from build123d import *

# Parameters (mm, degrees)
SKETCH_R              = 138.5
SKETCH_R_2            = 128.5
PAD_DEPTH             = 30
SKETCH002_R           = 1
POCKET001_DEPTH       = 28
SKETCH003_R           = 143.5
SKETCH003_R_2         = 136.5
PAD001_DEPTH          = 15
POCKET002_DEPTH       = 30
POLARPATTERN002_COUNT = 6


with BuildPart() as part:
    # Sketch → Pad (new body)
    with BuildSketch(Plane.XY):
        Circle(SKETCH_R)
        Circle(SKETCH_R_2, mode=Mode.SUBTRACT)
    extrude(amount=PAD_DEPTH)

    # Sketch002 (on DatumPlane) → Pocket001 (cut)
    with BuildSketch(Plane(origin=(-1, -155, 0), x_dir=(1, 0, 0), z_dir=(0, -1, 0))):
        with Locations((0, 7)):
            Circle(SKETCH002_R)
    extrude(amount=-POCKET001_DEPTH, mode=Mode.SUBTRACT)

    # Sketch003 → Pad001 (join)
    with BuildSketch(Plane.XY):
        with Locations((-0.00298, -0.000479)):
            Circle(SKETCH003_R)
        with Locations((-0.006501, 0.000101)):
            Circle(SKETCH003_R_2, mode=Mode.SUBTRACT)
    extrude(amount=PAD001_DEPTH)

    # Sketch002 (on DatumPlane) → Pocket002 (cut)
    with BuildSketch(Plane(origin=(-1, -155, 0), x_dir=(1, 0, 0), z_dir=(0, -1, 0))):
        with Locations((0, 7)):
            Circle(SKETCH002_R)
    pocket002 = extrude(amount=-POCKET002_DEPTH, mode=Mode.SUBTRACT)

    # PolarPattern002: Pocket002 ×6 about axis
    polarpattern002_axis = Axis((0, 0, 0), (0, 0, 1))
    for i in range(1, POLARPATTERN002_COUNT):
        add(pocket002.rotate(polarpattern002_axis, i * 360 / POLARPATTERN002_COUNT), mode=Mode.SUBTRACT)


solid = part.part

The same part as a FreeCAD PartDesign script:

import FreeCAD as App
import Part
import Sketcher
from FreeCAD import Vector
Q = App.Units.Quantity

doc = App.newDocument("Part")
body = doc.addObject("PartDesign::Body", "Body")

# Sketch on XY plane
sketch1 = doc.addObject("Sketcher::SketchObject", "Sketch")
body.addObject(sketch1)
sketch1.AttachmentSupport = (doc.XY_Plane, [""])
sketch1.MapMode = "FlatFace"
sketch1.addGeometry([
    Part.Circle(Vector(0, 0, 0), Vector(0, 0, 1), 138.5),
    Part.Circle(Vector(0, 0, 0), Vector(0, 0, 1), 128.5),
], False)
sketch1.addConstraint([
    Sketcher.Constraint("Coincident", 0, 3, -1, 1),
    Sketcher.Constraint("Coincident", 1, 3, -1, 1),
    Sketcher.Constraint("Diameter", 0, Q("277 mm")),
    Sketcher.Constraint("Diameter", 1, Q("257 mm")),
])
pad1 = doc.addObject("PartDesign::Pad", "Pad")
body.addObject(pad1)
pad1.Profile = sketch1
pad1.Length = 30

# Sketch on XZ plane
sketch2 = doc.addObject("Sketcher::SketchObject", "Sketch001")
body.addObject(sketch2)
sketch2.AttachmentSupport = (doc.XZ_Plane, [""])
sketch2.MapMode = "FlatFace"
sketch2.AttachmentOffset = App.Placement(Vector(0, 0, 155), App.Rotation())
sketch2.addGeometry(Part.Circle(Vector(-1, 7, 0), Vector(0, 0, 1), 1), False)
sketch2.addConstraint([
    Sketcher.Constraint("Diameter", 0, Q("2 mm")),
    Sketcher.Constraint("DistanceX", 0, 3, -1, 1, Q("1 mm")),
    Sketcher.Constraint("DistanceY", -1, 1, 0, 3, Q("7 mm")),
])
pocket1 = doc.addObject("PartDesign::Pocket", "Pocket")
body.addObject(pocket1)
pocket1.Profile = sketch2
pocket1.Length = 28

# Sketch on XY plane
sketch3 = doc.addObject("Sketcher::SketchObject", "Sketch002")
body.addObject(sketch3)
sketch3.AttachmentSupport = (doc.XY_Plane, [""])
sketch3.MapMode = "FlatFace"
sketch3.addGeometry([
    Part.Circle(Vector(-0.00298, -0.000479, 0), Vector(0, 0, 1), 143.5),
    Part.Circle(Vector(-0.006501, 0.000101, 0), Vector(0, 0, 1), 136.5),
], False)
sketch3.addConstraint([
    Sketcher.Constraint("Diameter", 0, Q("287 mm")),
    Sketcher.Constraint("Diameter", 1, Q("273 mm")),
    Sketcher.Constraint("DistanceX", 1, 3, -1, 1, Q("0.006501 mm")),
    Sketcher.Constraint("DistanceY", -1, 1, 1, 3, Q("0.000101 mm")),
    Sketcher.Constraint("DistanceX", 0, 3, -1, 1, Q("0.00298 mm")),
    Sketcher.Constraint("DistanceY", 0, 3, -1, 1, Q("0.000479 mm")),
])
pad2 = doc.addObject("PartDesign::Pad", "Pad001")
body.addObject(pad2)
pad2.Profile = sketch3
pad2.Length = 15

# Sketch on XZ plane
sketch4 = doc.addObject("Sketcher::SketchObject", "Sketch003")
body.addObject(sketch4)
sketch4.AttachmentSupport = (doc.XZ_Plane, [""])
sketch4.MapMode = "FlatFace"
sketch4.AttachmentOffset = App.Placement(Vector(0, 0, 155), App.Rotation())
sketch4.addGeometry(Part.Circle(Vector(-1, 7, 0), Vector(0, 0, 1), 1), False)
sketch4.addConstraint([
    Sketcher.Constraint("Diameter", 0, Q("2 mm")),
    Sketcher.Constraint("DistanceX", 0, 3, -1, 1, Q("1 mm")),
    Sketcher.Constraint("DistanceY", -1, 1, 0, 3, Q("7 mm")),
])
pocket2 = doc.addObject("PartDesign::Pocket", "Pocket001")
body.addObject(pocket2)
pocket2.Profile = sketch4
pocket2.Length = 30
doc.recompute()

polarpattern = doc.addObject("PartDesign::PolarPattern", "PolarPattern")
body.addObject(polarpattern)
polarpattern.Originals = [pocket2]
polarpattern.Axis = (doc.Z_Axis, [""])
polarpattern.Angle = 360
polarpattern.Occurrences = 6
body.Tip = polarpattern

doc.recompute()
